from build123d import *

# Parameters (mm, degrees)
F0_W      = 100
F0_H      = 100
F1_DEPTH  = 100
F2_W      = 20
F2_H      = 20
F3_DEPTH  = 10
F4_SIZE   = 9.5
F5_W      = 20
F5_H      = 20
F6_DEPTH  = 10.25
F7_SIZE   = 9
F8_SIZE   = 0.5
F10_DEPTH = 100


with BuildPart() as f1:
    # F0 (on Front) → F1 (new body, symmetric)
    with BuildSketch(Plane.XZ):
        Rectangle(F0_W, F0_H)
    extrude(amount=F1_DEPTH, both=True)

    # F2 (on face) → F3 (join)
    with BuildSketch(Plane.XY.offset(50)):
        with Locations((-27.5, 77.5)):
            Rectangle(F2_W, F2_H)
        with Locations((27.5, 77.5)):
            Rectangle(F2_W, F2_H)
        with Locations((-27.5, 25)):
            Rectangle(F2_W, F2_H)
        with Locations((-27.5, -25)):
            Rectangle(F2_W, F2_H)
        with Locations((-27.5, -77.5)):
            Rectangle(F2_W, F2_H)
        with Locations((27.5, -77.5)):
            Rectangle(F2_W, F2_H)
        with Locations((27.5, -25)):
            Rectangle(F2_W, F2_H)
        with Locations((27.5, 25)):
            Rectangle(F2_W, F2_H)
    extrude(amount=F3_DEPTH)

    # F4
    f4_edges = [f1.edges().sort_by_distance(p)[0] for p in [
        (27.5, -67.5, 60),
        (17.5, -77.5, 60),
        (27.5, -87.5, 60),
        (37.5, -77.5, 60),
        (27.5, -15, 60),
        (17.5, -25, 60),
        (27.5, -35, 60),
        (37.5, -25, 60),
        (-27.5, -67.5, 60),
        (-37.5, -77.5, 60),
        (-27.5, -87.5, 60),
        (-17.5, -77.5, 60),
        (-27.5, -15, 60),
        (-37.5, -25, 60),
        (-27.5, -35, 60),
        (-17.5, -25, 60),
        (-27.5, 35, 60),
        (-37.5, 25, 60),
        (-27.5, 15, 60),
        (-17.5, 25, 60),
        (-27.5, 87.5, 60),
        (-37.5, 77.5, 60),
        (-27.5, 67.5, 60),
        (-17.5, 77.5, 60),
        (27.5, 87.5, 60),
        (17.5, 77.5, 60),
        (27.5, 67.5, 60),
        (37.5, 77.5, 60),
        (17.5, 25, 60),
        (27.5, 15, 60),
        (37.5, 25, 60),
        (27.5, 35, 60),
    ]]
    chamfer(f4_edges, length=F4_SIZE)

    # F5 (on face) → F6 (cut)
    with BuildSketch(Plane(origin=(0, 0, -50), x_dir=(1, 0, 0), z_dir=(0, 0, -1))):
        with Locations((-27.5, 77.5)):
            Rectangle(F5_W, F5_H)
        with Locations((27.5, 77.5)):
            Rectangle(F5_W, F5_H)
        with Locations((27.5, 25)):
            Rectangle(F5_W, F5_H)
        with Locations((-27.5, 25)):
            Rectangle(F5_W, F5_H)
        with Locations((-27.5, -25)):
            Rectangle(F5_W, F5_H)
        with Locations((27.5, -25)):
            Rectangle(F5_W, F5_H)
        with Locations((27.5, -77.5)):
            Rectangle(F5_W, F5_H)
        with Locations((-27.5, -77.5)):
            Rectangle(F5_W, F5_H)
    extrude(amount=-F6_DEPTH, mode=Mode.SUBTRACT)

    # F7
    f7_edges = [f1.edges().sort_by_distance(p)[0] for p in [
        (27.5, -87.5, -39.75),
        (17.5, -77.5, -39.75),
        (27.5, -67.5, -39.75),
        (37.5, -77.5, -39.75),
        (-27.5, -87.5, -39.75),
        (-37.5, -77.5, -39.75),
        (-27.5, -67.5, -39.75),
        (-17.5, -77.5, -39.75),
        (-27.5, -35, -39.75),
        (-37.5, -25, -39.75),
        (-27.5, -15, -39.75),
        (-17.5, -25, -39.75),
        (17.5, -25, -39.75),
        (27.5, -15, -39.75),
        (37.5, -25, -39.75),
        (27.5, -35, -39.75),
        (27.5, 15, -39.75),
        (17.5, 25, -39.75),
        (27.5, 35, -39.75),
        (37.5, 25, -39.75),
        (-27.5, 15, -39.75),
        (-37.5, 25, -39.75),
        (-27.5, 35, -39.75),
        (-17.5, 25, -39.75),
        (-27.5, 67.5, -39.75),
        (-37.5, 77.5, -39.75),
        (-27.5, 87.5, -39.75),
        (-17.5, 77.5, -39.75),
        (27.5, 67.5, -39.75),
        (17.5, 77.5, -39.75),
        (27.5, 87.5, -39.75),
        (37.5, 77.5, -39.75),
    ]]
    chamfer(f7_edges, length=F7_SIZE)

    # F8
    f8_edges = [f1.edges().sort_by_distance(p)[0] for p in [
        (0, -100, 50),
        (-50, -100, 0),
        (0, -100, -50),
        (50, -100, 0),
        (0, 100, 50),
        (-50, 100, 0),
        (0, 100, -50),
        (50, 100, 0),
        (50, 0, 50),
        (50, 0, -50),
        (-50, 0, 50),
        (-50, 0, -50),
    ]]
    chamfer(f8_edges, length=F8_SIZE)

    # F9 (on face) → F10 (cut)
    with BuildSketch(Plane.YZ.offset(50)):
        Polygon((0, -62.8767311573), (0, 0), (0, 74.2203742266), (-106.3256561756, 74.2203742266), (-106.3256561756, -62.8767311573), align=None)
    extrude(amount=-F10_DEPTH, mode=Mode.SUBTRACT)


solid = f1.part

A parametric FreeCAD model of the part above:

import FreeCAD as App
import Part
import Sketcher
from FreeCAD import Vector


def edges_at(feature, points):
    """Names of the edges that pass closest to the given points."""
    edges = feature.Shape.Edges
    near = lambda p: min(range(len(edges)), key=lambda i: edges[i].distToShape(Part.Vertex(*p))[0])
    return sorted({f"Edge{near(p) + 1}" for p in points})

doc = App.newDocument("Part")
params = doc.addObject("Spreadsheet::Sheet", "Params")
for row, (alias, value) in enumerate([
    ("sketch1_width", "100 mm"),
    ("pad1_length", "200 mm"),
    ("sketch2_width", "20 mm"),
    ("pad2_length", "10 mm"),
    ("chamfer_size", "9.5 mm"),
    ("sketch3_width", "20 mm"),
    ("pocket1_length", "10.25 mm"),
    ("chamfer2_size", "9 mm"),
    ("chamfer3_size", "0.5 mm"),
    ("pocket2_length", "100 mm"),
], start=1):
    params.set(f"A{row}", alias)
    params.set(f"B{row}", "=" + value)
    params.setAlias(f"B{row}", alias)

body = doc.addObject("PartDesign::Body", "Body")

sketch1 = body.newObject("Sketcher::SketchObject", "Sketch")
sketch1.AttachmentSupport = (doc.getObject("XZ_Plane"), [""])
sketch1.MapMode = "FlatFace"
sketch1.addGeometry([
    Part.LineSegment(Vector(-50, 50, 0), Vector(-50, -50, 0)),
    Part.LineSegment(Vector(-50, -50, 0), Vector(50, -50, 0)),
    Part.LineSegment(Vector(50, -50, 0), Vector(50, 50, 0)),
    Part.LineSegment(Vector(50, 50, 0), Vector(-50, 50, 0)),
], False)
sketch1.addConstraint([
    Sketcher.Constraint("Coincident", 0, 2, 1, 1),
    Sketcher.Constraint("Coincident", 1, 2, 2, 1),
    Sketcher.Constraint("Coincident", 2, 2, 3, 1),
    Sketcher.Constraint("Coincident", 3, 2, 0, 1),
    Sketcher.Constraint("Vertical", 0),
    Sketcher.Constraint("Horizontal", 1),
    Sketcher.Constraint("Vertical", 2),
    Sketcher.Constraint("Horizontal", 3),
    Sketcher.Constraint("Symmetric", 0, 2, 2, 2, -1, 1),
    Sketcher.Constraint("Equal", 3, 0),
    Sketcher.Constraint("DistanceX", 1, 1, 1, 2, 100.0),
])
sketch1.setExpression("Constraints[10]", "Params.sketch1_width")
pad1 = body.newObject("PartDesign::Pad", "Pad")
pad1.Profile = sketch1
pad1.setExpression("Length", "Params.pad1_length")
pad1.Midplane = True

sketch2 = body.newObject("Sketcher::SketchObject", "Sketch001")
sketch2.AttachmentSupport = (doc.getObject("XY_Plane"), [""])
sketch2.MapMode = "FlatFace"
sketch2.AttachmentOffset = App.Placement(Vector(0, 0, 50), App.Rotation())
sketch2.addGeometry([
    Part.LineSegment(Vector(-38, 88, 0), Vector(-38, 68, 0)),
    Part.LineSegment(Vector(-38, 68, 0), Vector(-18, 68, 0)),
    Part.LineSegment(Vector(-18, 68, 0), Vector(-18, 88, 0)),
    Part.LineSegment(Vector(-18, 88, 0), Vector(-38, 88, 0)),
    Part.LineSegment(Vector(18, 88, 0), Vector(18, 68, 0)),
    Part.LineSegment(Vector(18, 68, 0), Vector(38, 68, 0)),
    Part.LineSegment(Vector(38, 68, 0), Vector(38, 88, 0)),
    Part.LineSegment(Vector(38, 88, 0), Vector(18, 88, 0)),
    Part.LineSegment(Vector(-38, 35, 0), Vector(-38, 15, 0)),
    Part.LineSegment(Vector(-38, 15, 0), Vector(-18, 15, 0)),
    Part.LineSegment(Vector(-18, 15, 0), Vector(-18, 35, 0)),
    Part.LineSegment(Vector(-18, 35, 0), Vector(-38, 35, 0)),
    Part.LineSegment(Vector(-38, -15, 0), Vector(-38, -35, 0)),
    Part.LineSegment(Vector(-38, -35, 0), Vector(-18, -35, 0)),
    Part.LineSegment(Vector(-18, -35, 0), Vector(-18, -15, 0)),
    Part.LineSegment(Vector(-18, -15, 0), Vector(-38, -15, 0)),
    Part.LineSegment(Vector(-38, -68, 0), Vector(-38, -88, 0)),
    Part.LineSegment(Vector(-38, -88, 0), Vector(-18, -88, 0)),
    Part.LineSegment(Vector(-18, -88, 0), Vector(-18, -68, 0)),
    Part.LineSegment(Vector(-18, -68, 0), Vector(-38, -68, 0)),
    Part.LineSegment(Vector(18, -68, 0), Vector(18, -88, 0)),
    Part.LineSegment(Vector(18, -88, 0), Vector(38, -88, 0)),
    Part.LineSegment(Vector(38, -88, 0), Vector(38, -68, 0)),
    Part.LineSegment(Vector(38, -68, 0), Vector(18, -68, 0)),
    Part.LineSegment(Vector(18, -15, 0), Vector(18, -35, 0)),
    Part.LineSegment(Vector(18, -35, 0), Vector(38, -35, 0)),
    Part.LineSegment(Vector(38, -35, 0), Vector(38, -15, 0)),
    Part.LineSegment(Vector(38, -15, 0), Vector(18, -15, 0)),
    Part.LineSegment(Vector(18, 35, 0), Vector(18, 15, 0)),
    Part.LineSegment(Vector(18, 15, 0), Vector(38, 15, 0)),
    Part.LineSegment(Vector(38, 15, 0), Vector(38, 35, 0)),
    Part.LineSegment(Vector(38, 35, 0), Vector(18, 35, 0)),
], False)
sketch2.addConstraint([
    Sketcher.Constraint("Coincident", 0, 2, 1, 1),
    Sketcher.Constraint("Coincident", 1, 2, 2, 1),
    Sketcher.Constraint("Coincident", 2, 2, 3, 1),
    Sketcher.Constraint("Coincident", 3, 2, 0, 1),
    Sketcher.Constraint("Coincident", 4, 2, 5, 1),
    Sketcher.Constraint("Coincident", 5, 2, 6, 1),
    Sketcher.Constraint("Coincident", 6, 2, 7, 1),
    Sketcher.Constraint("Coincident", 7, 2, 4, 1),
    Sketcher.Constraint("Coincident", 8, 2, 9, 1),
    Sketcher.Constraint("Coincident", 9, 2, 10, 1),
    Sketcher.Constraint("Coincident", 10, 2, 11, 1),
    Sketcher.Constraint("Coincident", 11, 2, 8, 1),
    Sketcher.Constraint("Coincident", 12, 2, 13, 1),
    Sketcher.Constraint("Coincident", 13, 2, 14, 1),
    Sketcher.Constraint("Coincident", 14, 2, 15, 1),
    Sketcher.Constraint("Coincident", 15, 2, 12, 1),
    Sketcher.Constraint("Coincident", 16, 2, 17, 1),
    Sketcher.Constraint("Coincident", 17, 2, 18, 1),
    Sketcher.Constraint("Coincident", 18, 2, 19, 1),
    Sketcher.Constraint("Coincident", 19, 2, 16, 1),
    Sketcher.Constraint("Coincident", 20, 2, 21, 1),
    Sketcher.Constraint("Coincident", 21, 2, 22, 1),
    Sketcher.Constraint("Coincident", 22, 2, 23, 1),
    Sketcher.Constraint("Coincident", 23, 2, 20, 1),
    Sketcher.Constraint("Coincident", 24, 2, 25, 1),
    Sketcher.Constraint("Coincident", 25, 2, 26, 1),
    Sketcher.Constraint("Coincident", 26, 2, 27, 1),
    Sketcher.Constraint("Coincident", 27, 2, 24, 1),
    Sketcher.Constraint("Coincident", 28, 2, 29, 1),
    Sketcher.Constraint("Coincident", 29, 2, 30, 1),
    Sketcher.Constraint("Coincident", 30, 2, 31, 1),
    Sketcher.Constraint("Coincident", 31, 2, 28, 1),
    Sketcher.Constraint("Vertical", 0),
    Sketcher.Constraint("Horizontal", 1),
    Sketcher.Constraint("Vertical", 2),
    Sketcher.Constraint("Horizontal", 3),
    Sketcher.Constraint("Vertical", 4),
    Sketcher.Constraint("Horizontal", 5),
    Sketcher.Constraint("Vertical", 6),
    Sketcher.Constraint("Horizontal", 7),
    Sketcher.Constraint("Vertical", 8),
    Sketcher.Constraint("Horizontal", 9),
    Sketcher.Constraint("Vertical", 10),
    Sketcher.Constraint("Horizontal", 11),
    Sketcher.Constraint("Vertical", 12),
    Sketcher.Constraint("Horizontal", 13),
    Sketcher.Constraint("Vertical", 14),
    Sketcher.Constraint("Horizontal", 15),
    Sketcher.Constraint("Vertical", 16),
    Sketcher.Constraint("Horizontal", 17),
    Sketcher.Constraint("Vertical", 18),
    Sketcher.Constraint("Horizontal", 19),
    Sketcher.Constraint("Vertical", 20),
    Sketcher.Constraint("Horizontal", 21),
    Sketcher.Constraint("Vertical", 22),
    Sketcher.Constraint("Horizontal", 23),
    Sketcher.Constraint("Vertical", 24),
    Sketcher.Constraint("Horizontal", 25),
    Sketcher.Constraint("Vertical", 26),
    Sketcher.Constraint("Horizontal", 27),
    Sketcher.Constraint("Vertical", 28),
    Sketcher.Constraint("Horizontal", 29),
    Sketcher.Constraint("Vertical", 30),
    Sketcher.Constraint("Horizontal", 31),
    Sketcher.Constraint("Symmetric", 6, 2, 16, 2, -1, 1),
    Sketcher.Constraint("Symmetric", 4, 2, 18, 2, -1, 1),
    Sketcher.Constraint("Symmetric", 2, 2, 20, 2, -1, 1),
    Sketcher.Constraint("Symmetric", 0, 2, 22, 2, -1, 1),
    Sketcher.Constraint("Symmetric", 10, 2, 24, 2, -1, 1),
    Sketcher.Constraint("Symmetric", 8, 2, 26, 2, -1, 1),
    Sketcher.Constraint("Symmetric", 14, 2, 28, 2, -1, 1),
    Sketcher.Constraint("Symmetric", 12, 2, 30, 2, -1, 1),
    Sketcher.Constraint("Symmetric", 1, 2, 4, 2, -2),
    Sketcher.Constraint("Symmetric", 3, 2, 6, 2, -2),
    Sketcher.Constraint("Symmetric", 13, 2, 24, 2, -2),
    Sketcher.Constraint("Symmetric", 15, 2, 26, 2, -2),
    Sketcher.Constraint("Vertical", 3, 2, 8, 2),
    Sketcher.Constraint("Vertical", 2, 2, 9, 2),
    Sketcher.Constraint("Equal", 31, 0),
    Sketcher.Constraint("Equal", 6, 8),
    Sketcher.Constraint("DistanceX", 1, 1, 1, 2, 20.0),
    Sketcher.Constraint("DistanceY", -1, 1, 8, 2, 15.0),
    Sketcher.Constraint("DistanceX", 1, 2, 4, 2, 35.0),
    Sketcher.Constraint("DistanceY", -1, 1, 0, 2, 67.5),
])
sketch2.setExpression("Constraints[80]", "Params.sketch2_width")
pad2 = body.newObject("PartDesign::Pad", "Pad001")
pad2.Profile = sketch2
pad2.setExpression("Length", "Params.pad2_length")
doc.recompute()

chamfer = body.newObject("PartDesign::Chamfer", "Chamfer")
chamfer.Base = (pad2, edges_at(pad2, [
    (27.5, -67.5, 60),
    (17.5, -77.5, 60),
    (27.5, -87.5, 60),
    (37.5, -77.5, 60),
    (27.5, -15, 60),
    (17.5, -25, 60),
    (27.5, -35, 60),
    (37.5, -25, 60),
    (-27.5, -67.5, 60),
    (-37.5, -77.5, 60),
    (-27.5, -87.5, 60),
    (-17.5, -77.5, 60),
    (-27.5, -15, 60),
    (-37.5, -25, 60),
    (-27.5, -35, 60),
    (-17.5, -25, 60),
    (-27.5, 35, 60),
    (-37.5, 25, 60),
    (-27.5, 15, 60),
    (-17.5, 25, 60),
    (-27.5, 87.5, 60),
    (-37.5, 77.5, 60),
    (-27.5, 67.5, 60),
    (-17.5, 77.5, 60),
    (27.5, 87.5, 60),
    (17.5, 77.5, 60),
    (27.5, 67.5, 60),
    (37.5, 77.5, 60),
    (17.5, 25, 60),
    (27.5, 15, 60),
    (37.5, 25, 60),
    (27.5, 35, 60),
]))
chamfer.setExpression("Size", "Params.chamfer_size")

sketch3 = body.newObject("Sketcher::SketchObject", "Sketch002")
sketch3.AttachmentSupport = (doc.getObject("XY_Plane"), [""])
sketch3.MapMode = "FlatFace"
sketch3.AttachmentOffset = App.Placement(Vector(0, 0, -50), App.Rotation())
sketch3.addGeometry([
    Part.LineSegment(Vector(-38, -88, 0), Vector(-38, -68, 0)),
    Part.LineSegment(Vector(-38, -68, 0), Vector(-18, -68, 0)),
    Part.LineSegment(Vector(-18, -68, 0), Vector(-18, -88, 0)),
    Part.LineSegment(Vector(-18, -88, 0), Vector(-38, -88, 0)),
    Part.LineSegment(Vector(18, -88, 0), Vector(18, -68, 0)),
    Part.LineSegment(Vector(18, -68, 0), Vector(38, -68, 0)),
    Part.LineSegment(Vector(38, -68, 0), Vector(38, -88, 0)),
    Part.LineSegment(Vector(38, -88, 0), Vector(18, -88, 0)),
    Part.LineSegment(Vector(18, -35, 0), Vector(18, -15, 0)),
    Part.LineSegment(Vector(18, -15, 0), Vector(38, -15, 0)),
    Part.LineSegment(Vector(38, -15, 0), Vector(38, -35, 0)),
    Part.LineSegment(Vector(38, -35, 0), Vector(18, -35, 0)),
    Part.LineSegment(Vector(-38, -35, 0), Vector(-38, -15, 0)),
    Part.LineSegment(Vector(-38, -15, 0), Vector(-18, -15, 0)),
    Part.LineSegment(Vector(-18, -15, 0), Vector(-18, -35, 0)),
    Part.LineSegment(Vector(-18, -35, 0), Vector(-38, -35, 0)),
    Part.LineSegment(Vector(-38, 15, 0), Vector(-38, 35, 0)),
    Part.LineSegment(Vector(-38, 35, 0), Vector(-18, 35, 0)),
    Part.LineSegment(Vector(-18, 35, 0), Vector(-18, 15, 0)),
    Part.LineSegment(Vector(-18, 15, 0), Vector(-38, 15, 0)),
    Part.LineSegment(Vector(18, 15, 0), Vector(18, 35, 0)),
    Part.LineSegment(Vector(18, 35, 0), Vector(38, 35, 0)),
    Part.LineSegment(Vector(38, 35, 0), Vector(38, 15, 0)),
    Part.LineSegment(Vector(38, 15, 0), Vector(18, 15, 0)),
    Part.LineSegment(Vector(18, 68, 0), Vector(18, 88, 0)),
    Part.LineSegment(Vector(18, 88, 0), Vector(38, 88, 0)),
    Part.LineSegment(Vector(38, 88, 0), Vector(38, 68, 0)),
    Part.LineSegment(Vector(38, 68, 0), Vector(18, 68, 0)),
    Part.LineSegment(Vector(-38, 68, 0), Vector(-38, 88, 0)),
    Part.LineSegment(Vector(-38, 88, 0), Vector(-18, 88, 0)),
    Part.LineSegment(Vector(-18, 88, 0), Vector(-18, 68, 0)),
    Part.LineSegment(Vector(-18, 68, 0), Vector(-38, 68, 0)),
], False)
sketch3.addConstraint([
    Sketcher.Constraint("Coincident", 0, 2, 1, 1),
    Sketcher.Constraint("Coincident", 1, 2, 2, 1),
    Sketcher.Constraint("Coincident", 2, 2, 3, 1),
    Sketcher.Constraint("Coincident", 3, 2, 0, 1),
    Sketcher.Constraint("Coincident", 4, 2, 5, 1),
    Sketcher.Constraint("Coincident", 5, 2, 6, 1),
    Sketcher.Constraint("Coincident", 6, 2, 7, 1),
    Sketcher.Constraint("Coincident", 7, 2, 4, 1),
    Sketcher.Constraint("Coincident", 8, 2, 9, 1),
    Sketcher.Constraint("Coincident", 9, 2, 10, 1),
    Sketcher.Constraint("Coincident", 10, 2, 11, 1),
    Sketcher.Constraint("Coincident", 11, 2, 8, 1),
    Sketcher.Constraint("Coincident", 12, 2, 13, 1),
    Sketcher.Constraint("Coincident", 13, 2, 14, 1),
    Sketcher.Constraint("Coincident", 14, 2, 15, 1),
    Sketcher.Constraint("Coincident", 15, 2, 12, 1),
    Sketcher.Constraint("Coincident", 16, 2, 17, 1),
    Sketcher.Constraint("Coincident", 17, 2, 18, 1),
    Sketcher.Constraint("Coincident", 18, 2, 19, 1),
    Sketcher.Constraint("Coincident", 19, 2, 16, 1),
    Sketcher.Constraint("Coincident", 20, 2, 21, 1),
    Sketcher.Constraint("Coincident", 21, 2, 22, 1),
    Sketcher.Constraint("Coincident", 22, 2, 23, 1),
    Sketcher.Constraint("Coincident", 23, 2, 20, 1),
    Sketcher.Constraint("Coincident", 24, 2, 25, 1),
    Sketcher.Constraint("Coincident", 25, 2, 26, 1),
    Sketcher.Constraint("Coincident", 26, 2, 27, 1),
    Sketcher.Constraint("Coincident", 27, 2, 24, 1),
    Sketcher.Constraint("Coincident", 28, 2, 29, 1),
    Sketcher.Constraint("Coincident", 29, 2, 30, 1),
    Sketcher.Constraint("Coincident", 30, 2, 31, 1),
    Sketcher.Constraint("Coincident", 31, 2, 28, 1),
    Sketcher.Constraint("Vertical", 0),
    Sketcher.Constraint("Horizontal", 1),
    Sketcher.Constraint("Vertical", 2),
    Sketcher.Constraint("Horizontal", 3),
    Sketcher.Constraint("Vertical", 4),
    Sketcher.Constraint("Horizontal", 5),
    Sketcher.Constraint("Vertical", 6),
    Sketcher.Constraint("Horizontal", 7),
    Sketcher.Constraint("Vertical", 8),
    Sketcher.Constraint("Horizontal", 9),
    Sketcher.Constraint("Vertical", 10),
    Sketcher.Constraint("Horizontal", 11),
    Sketcher.Constraint("Vertical", 12),
    Sketcher.Constraint("Horizontal", 13),
    Sketcher.Constraint("Vertical", 14),
    Sketcher.Constraint("Horizontal", 15),
    Sketcher.Constraint("Vertical", 16),
    Sketcher.Constraint("Horizontal", 17),
    Sketcher.Constraint("Vertical", 18),
    Sketcher.Constraint("Horizontal", 19),
    Sketcher.Constraint("Vertical", 20),
    Sketcher.Constraint("Horizontal", 21),
    Sketcher.Constraint("Vertical", 22),
    Sketcher.Constraint("Horizontal", 23),
    Sketcher.Constraint("Vertical", 24),
    Sketcher.Constraint("Horizontal", 25),
    Sketcher.Constraint("Vertical", 26),
    Sketcher.Constraint("Horizontal", 27),
    Sketcher.Constraint("Vertical", 28),
    Sketcher.Constraint("Horizontal", 29),
    Sketcher.Constraint("Vertical", 30),
    Sketcher.Constraint("Horizontal", 31),
    Sketcher.Constraint("Symmetric", 10, 2, 16, 2, -1, 1),
    Sketcher.Constraint("Symmetric", 8, 2, 18, 2, -1, 1),
    Sketcher.Constraint("Symmetric", 14, 2, 20, 2, -1, 1),
    Sketcher.Constraint("Symmetric", 12, 2, 22, 2, -1, 1),
    Sketcher.Constraint("Symmetric", 2, 2, 24, 2, -1, 1),
    Sketcher.Constraint("Symmetric", 0, 2, 26, 2, -1, 1),
    Sketcher.Constraint("Symmetric", 6, 2, 28, 2, -1, 1),
    Sketcher.Constraint("Symmetric", 4, 2, 30, 2, -1, 1),
    Sketcher.Constraint("Symmetric", 1, 2, 4, 2, -2),
    Sketcher.Constraint("Symmetric", 3, 2, 6, 2, -2),
    Sketcher.Constraint("Symmetric", 9, 2, 12, 2, -2),
    Sketcher.Constraint("Symmetric", 11, 2, 14, 2, -2),
    Sketcher.Constraint("Vertical", 7, 2, 8, 2),
    Sketcher.Constraint("Vertical", 6, 2, 9, 2),
    Sketcher.Constraint("Equal", 31, 0),
    Sketcher.Constraint("Equal", 6, 8),
    Sketcher.Constraint("DistanceX", 1, 1, 1, 2, 20.0),
    Sketcher.Constraint("DistanceY", 8, 2, -1, 1, 15.0),
    Sketcher.Constraint("DistanceX", 1, 2, 4, 2, 35.0),
    Sketcher.Constraint("DistanceY", 0, 2, -1, 1, 67.5),
])
sketch3.setExpression("Constraints[80]", "Params.sketch3_width")
pocket1 = body.newObject("PartDesign::Pocket", "Pocket")
pocket1.Profile = sketch3
pocket1.setExpression("Length", "Params.pocket1_length")
pocket1.Reversed = True
doc.recompute()

chamfer2 = body.newObject("PartDesign::Chamfer", "Chamfer001")
chamfer2.Base = (pocket1, edges_at(pocket1, [
    (27.5, -87.5, -39.75),
    (17.5, -77.5, -39.75),
    (27.5, -67.5, -39.75),
    (37.5, -77.5, -39.75),
    (-27.5, -87.5, -39.75),
    (-37.5, -77.5, -39.75),
    (-27.5, -67.5, -39.75),
    (-17.5, -77.5, -39.75),
    (-27.5, -35, -39.75),
    (-37.5, -25, -39.75),
    (-27.5, -15, -39.75),
    (-17.5, -25, -39.75),
    (17.5, -25, -39.75),
    (27.5, -15, -39.75),
    (37.5, -25, -39.75),
    (27.5, -35, -39.75),
    (27.5, 15, -39.75),
    (17.5, 25, -39.75),
    (27.5, 35, -39.75),
    (37.5, 25, -39.75),
    (-27.5, 15, -39.75),
    (-37.5, 25, -39.75),
    (-27.5, 35, -39.75),
    (-17.5, 25, -39.75),
    (-27.5, 67.5, -39.75),
    (-37.5, 77.5, -39.75),
    (-27.5, 87.5, -39.75),
    (-17.5, 77.5, -39.75),
    (27.5, 67.5, -39.75),
    (17.5, 77.5, -39.75),
    (27.5, 87.5, -39.75),
    (37.5, 77.5, -39.75),
]))
chamfer2.setExpression("Size", "Params.chamfer2_size")
doc.recompute()

chamfer3 = body.newObject("PartDesign::Chamfer", "Chamfer002")
chamfer3.Base = (chamfer2, edges_at(chamfer2, [
    (0, -100, 50),
    (-50, -100, 0),
    (0, -100, -50),
    (50, -100, 0),
    (0, 100, 50),
    (-50, 100, 0),
    (0, 100, -50),
    (50, 100, 0),
    (50, 0, 50),
    (50, 0, -50),
    (-50, 0, 50),
    (-50, 0, -50),
]))
chamfer3.setExpression("Size", "Params.chamfer3_size")

sketch4 = body.newObject("Sketcher::SketchObject", "Sketch003")
sketch4.AttachmentSupport = (doc.getObject("YZ_Plane"), [""])
sketch4.MapMode = "FlatFace"
sketch4.AttachmentOffset = App.Placement(Vector(0, 0, 50), App.Rotation())
sketch4.addGeometry([
    Part.LineSegment(Vector(0, -63, 0), Vector(0, 74, 0)),
    Part.LineSegment(Vector(0, 74, 0), Vector(-106, 74, 0)),
    Part.LineSegment(Vector(-106, 74, 0), Vector(-106, -63, 0)),
    Part.LineSegment(Vector(-106, -63, 0), Vector(0, -63, 0)),
], False)
sketch4.addConstraint([
    Sketcher.Constraint("Coincident", 0, 2, 1, 1),
    Sketcher.Constraint("Coincident", 1, 2, 2, 1),
    Sketcher.Constraint("Coincident", 2, 2, 3, 1),
    Sketcher.Constraint("Coincident", 3, 2, 0, 1),
    Sketcher.Constraint("Vertical", 0),
    Sketcher.Constraint("Horizontal", 1),
    Sketcher.Constraint("Vertical", 2),
    Sketcher.Constraint("Horizontal", 3),
    Sketcher.Constraint("PointOnObject", 0, 2, -2),
    Sketcher.Constraint("DistanceX", 1, 2, 1, 1, 106.325656),
    Sketcher.Constraint("DistanceY", 0, 1, 0, 2, 137.097105),
    Sketcher.Constraint("DistanceY", 2, 2, -1, 1, 62.876731),
])
pocket2 = body.newObject("PartDesign::Pocket", "Pocket001")
pocket2.Profile = sketch4
pocket2.setExpression("Length", "Params.pocket2_length")

doc.recompute()
